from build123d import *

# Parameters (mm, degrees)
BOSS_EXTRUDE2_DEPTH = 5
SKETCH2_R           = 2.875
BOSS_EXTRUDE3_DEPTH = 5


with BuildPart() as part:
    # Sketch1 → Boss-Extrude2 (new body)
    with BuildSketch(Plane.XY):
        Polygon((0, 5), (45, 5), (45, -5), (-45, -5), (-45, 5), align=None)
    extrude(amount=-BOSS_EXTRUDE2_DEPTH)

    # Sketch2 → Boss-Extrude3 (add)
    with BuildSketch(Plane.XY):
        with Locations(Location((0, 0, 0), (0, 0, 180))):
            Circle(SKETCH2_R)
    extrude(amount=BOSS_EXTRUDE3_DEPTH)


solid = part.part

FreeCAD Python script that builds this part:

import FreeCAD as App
import Part
import Sketcher


def add_polygon(sketch, points):
    """Adds a closed chain of lines whose ends are joined by coincident constraints."""
    first, n = sketch.GeometryCount, len(points)
    for a, b in zip(points, points[1:] + points[:1]):
        sketch.addGeometry(Part.LineSegment(App.Vector(*a, 0), App.Vector(*b, 0)), False)
    for i in range(n):
        sketch.addConstraint(Sketcher.Constraint("Coincident", first + i, 2, first + (i + 1) % n, 1))

doc = App.newDocument("Part")
body = doc.addObject("PartDesign::Body", "Body")

sketch1 = body.newObject("Sketcher::SketchObject", "Sketch")
sketch1.AttachmentSupport = (doc.getObject("XY_Plane"), [""])
sketch1.MapMode = "FlatFace"
add_polygon(sketch1, [(45, 5), (-45, 5), (-45, -5), (45, -5)])
sketch1.addConstraint(Sketcher.Constraint("Horizontal", 0))
sketch1.addConstraint(Sketcher.Constraint("Vertical", 1))
sketch1.addConstraint(Sketcher.Constraint("Horizontal", 2))
sketch1.addConstraint(Sketcher.Constraint("Vertical", 3))
sketch1.addConstraint(Sketcher.Constraint("Symmetric", 0, 2, 2, 2, -1, 1))
sketch1.addConstraint(Sketcher.Constraint("DistanceX", 0, 2, 0, 1, 90.0))
sketch1.addConstraint(Sketcher.Constraint("DistanceY", 1, 2, 1, 1, 10.0))
pad1 = body.newObject("PartDesign::Pad", "Pad")
pad1.Profile = sketch1
pad1.Length = 5
pad1.Reversed = True

sketch2 = body.newObject("Sketcher::SketchObject", "Sketch001")
sketch2.AttachmentSupport = (doc.getObject("XY_Plane"), [""])
sketch2.MapMode = "FlatFace"
sketch2.addGeometry(Part.Circle(App.Vector(0, 0, 0), App.Vector(0, 0, 1), 2.9), False)
sketch2.addConstraint(Sketcher.Constraint("Coincident", 0, 3, -1, 1))
sketch2.addConstraint(Sketcher.Constraint("Diameter", 0, 5.75))
pad2 = body.newObject("PartDesign::Pad", "Pad001")
pad2.Profile = sketch2
pad2.Length = 5

doc.recompute()
